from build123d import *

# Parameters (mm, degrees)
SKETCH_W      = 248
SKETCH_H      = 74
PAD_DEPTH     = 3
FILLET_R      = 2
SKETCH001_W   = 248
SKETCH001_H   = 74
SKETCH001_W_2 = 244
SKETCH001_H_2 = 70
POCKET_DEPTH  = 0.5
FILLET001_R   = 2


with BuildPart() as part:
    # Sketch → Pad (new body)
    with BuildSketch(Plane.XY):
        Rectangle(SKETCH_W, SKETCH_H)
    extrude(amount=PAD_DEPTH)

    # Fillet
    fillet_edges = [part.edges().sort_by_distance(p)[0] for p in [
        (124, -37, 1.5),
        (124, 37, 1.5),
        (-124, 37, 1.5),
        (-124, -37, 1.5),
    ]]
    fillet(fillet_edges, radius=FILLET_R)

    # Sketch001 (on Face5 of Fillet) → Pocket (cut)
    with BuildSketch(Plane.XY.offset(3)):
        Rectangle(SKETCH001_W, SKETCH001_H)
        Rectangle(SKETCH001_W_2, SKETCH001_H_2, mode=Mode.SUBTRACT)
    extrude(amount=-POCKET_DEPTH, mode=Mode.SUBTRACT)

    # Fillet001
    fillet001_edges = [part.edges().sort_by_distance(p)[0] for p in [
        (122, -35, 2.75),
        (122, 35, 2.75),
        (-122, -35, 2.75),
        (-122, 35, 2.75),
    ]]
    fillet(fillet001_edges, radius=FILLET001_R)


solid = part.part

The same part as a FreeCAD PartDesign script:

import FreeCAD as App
import Part
import Sketcher
from FreeCAD import Vector
Q = App.Units.Quantity


def edges_at(feature, points):
    """Names of the edges that pass closest to the given points."""
    edges = feature.Shape.Edges
    near = lambda p: min(range(len(edges)), key=lambda i: edges[i].distToShape(Part.Vertex(*p))[0])
    return sorted({f"Edge{near(p) + 1}" for p in points})


def add_polygon(sketch, points):
    """Adds a closed chain of lines whose ends are joined by coincident constraints."""
    first, n = sketch.GeometryCount, len(points)
    for a, b in zip(points, points[1:] + points[:1]):
        sketch.addGeometry(Part.LineSegment(App.Vector(*a, 0), App.Vector(*b, 0)), False)
    for i in range(n):
        sketch.addConstraint(Sketcher.Constraint("Coincident", first + i, 2, first + (i + 1) % n, 1))

doc = App.newDocument("Part")
body = doc.addObject("PartDesign::Body", "Body")

# Sketch on XY plane
sketch1 = body.newObject("Sketcher::SketchObject", "Sketch")
sketch1.AttachmentSupport = (doc.getObject("XY_Plane"), [""])
sketch1.MapMode = "FlatFace"
add_polygon(sketch1, [(-124, 37), (-124, -37), (124, -37), (124, 37)])  # lines 0-3
sketch1.addConstraint(Sketcher.Constraint("Vertical", 0))
sketch1.addConstraint(Sketcher.Constraint("Horizontal", 1))
sketch1.addConstraint(Sketcher.Constraint("Vertical", 2))
sketch1.addConstraint(Sketcher.Constraint("Horizontal", 3))
sketch1.addConstraint(Sketcher.Constraint("Symmetric", 0, 2, 2, 2, -1, 1))
sketch1.addConstraint(Sketcher.Constraint("DistanceX", 1, 1, 1, 2, Q("248 mm")))
sketch1.addConstraint(Sketcher.Constraint("DistanceY", 0, 2, 0, 1, Q("74 mm")))
pad1 = body.newObject("PartDesign::Pad", "Pad")
pad1.Profile = sketch1
pad1.Length = 3
doc.recompute()

fillet = body.newObject("PartDesign::Fillet", "Fillet")
fillet.Base = (pad1, edges_at(pad1, [
    (124, -37, 1.5),
    (124, 37, 1.5),
    (-124, 37, 1.5),
    (-124, -37, 1.5),
]))
fillet.Radius = 2

# Sketch on XY plane
sketch2 = body.newObject("Sketcher::SketchObject", "Sketch001")
sketch2.AttachmentSupport = (doc.getObject("XY_Plane"), [""])
sketch2.MapMode = "FlatFace"
sketch2.AttachmentOffset = App.Placement(Vector(0, 0, 3), App.Rotation())
add_polygon(sketch2, [(-124, 37), (-124, -37), (124, -37), (124, 37)])  # lines 0-3
add_polygon(sketch2, [(122, -35), (-122, -35), (-122, 35), (122, 35)])  # lines 4-7
sketch2.addConstraint(Sketcher.Constraint("Vertical", 0))
sketch2.addConstraint(Sketcher.Constraint("Horizontal", 1))
sketch2.addConstraint(Sketcher.Constraint("Vertical", 2))
sketch2.addConstraint(Sketcher.Constraint("Horizontal", 3))
sketch2.addConstraint(Sketcher.Constraint("Horizontal", 4))
sketch2.addConstraint(Sketcher.Constraint("Vertical", 5))
sketch2.addConstraint(Sketcher.Constraint("Horizontal", 6))
sketch2.addConstraint(Sketcher.Constraint("Vertical", 7))
sketch2.addConstraint(Sketcher.Constraint("Symmetric", 0, 2, 2, 2, -1, 1))
sketch2.addConstraint(Sketcher.Constraint("Symmetric", 4, 2, 6, 2, -1, 1))
sketch2.addConstraint(Sketcher.Constraint("DistanceX", 1, 1, 1, 2, Q("248 mm")))
sketch2.addConstraint(Sketcher.Constraint("DistanceX", 4, 2, 4, 1, Q("244 mm")))
sketch2.addConstraint(Sketcher.Constraint("DistanceY", 0, 2, 0, 1, Q("74 mm")))
sketch2.addConstraint(Sketcher.Constraint("DistanceY", 5, 1, 5, 2, Q("70 mm")))
pocket1 = body.newObject("PartDesign::Pocket", "Pocket")
pocket1.Profile = sketch2
pocket1.Length = 0.5
doc.recompute()

fillet2 = body.newObject("PartDesign::Fillet", "Fillet001")
fillet2.Base = (pocket1, edges_at(pocket1, [
    (122, -35, 2.75),
    (122, 35, 2.75),
    (-122, -35, 2.75),
    (-122, 35, 2.75),
]))
fillet2.Radius = 2

doc.recompute()
